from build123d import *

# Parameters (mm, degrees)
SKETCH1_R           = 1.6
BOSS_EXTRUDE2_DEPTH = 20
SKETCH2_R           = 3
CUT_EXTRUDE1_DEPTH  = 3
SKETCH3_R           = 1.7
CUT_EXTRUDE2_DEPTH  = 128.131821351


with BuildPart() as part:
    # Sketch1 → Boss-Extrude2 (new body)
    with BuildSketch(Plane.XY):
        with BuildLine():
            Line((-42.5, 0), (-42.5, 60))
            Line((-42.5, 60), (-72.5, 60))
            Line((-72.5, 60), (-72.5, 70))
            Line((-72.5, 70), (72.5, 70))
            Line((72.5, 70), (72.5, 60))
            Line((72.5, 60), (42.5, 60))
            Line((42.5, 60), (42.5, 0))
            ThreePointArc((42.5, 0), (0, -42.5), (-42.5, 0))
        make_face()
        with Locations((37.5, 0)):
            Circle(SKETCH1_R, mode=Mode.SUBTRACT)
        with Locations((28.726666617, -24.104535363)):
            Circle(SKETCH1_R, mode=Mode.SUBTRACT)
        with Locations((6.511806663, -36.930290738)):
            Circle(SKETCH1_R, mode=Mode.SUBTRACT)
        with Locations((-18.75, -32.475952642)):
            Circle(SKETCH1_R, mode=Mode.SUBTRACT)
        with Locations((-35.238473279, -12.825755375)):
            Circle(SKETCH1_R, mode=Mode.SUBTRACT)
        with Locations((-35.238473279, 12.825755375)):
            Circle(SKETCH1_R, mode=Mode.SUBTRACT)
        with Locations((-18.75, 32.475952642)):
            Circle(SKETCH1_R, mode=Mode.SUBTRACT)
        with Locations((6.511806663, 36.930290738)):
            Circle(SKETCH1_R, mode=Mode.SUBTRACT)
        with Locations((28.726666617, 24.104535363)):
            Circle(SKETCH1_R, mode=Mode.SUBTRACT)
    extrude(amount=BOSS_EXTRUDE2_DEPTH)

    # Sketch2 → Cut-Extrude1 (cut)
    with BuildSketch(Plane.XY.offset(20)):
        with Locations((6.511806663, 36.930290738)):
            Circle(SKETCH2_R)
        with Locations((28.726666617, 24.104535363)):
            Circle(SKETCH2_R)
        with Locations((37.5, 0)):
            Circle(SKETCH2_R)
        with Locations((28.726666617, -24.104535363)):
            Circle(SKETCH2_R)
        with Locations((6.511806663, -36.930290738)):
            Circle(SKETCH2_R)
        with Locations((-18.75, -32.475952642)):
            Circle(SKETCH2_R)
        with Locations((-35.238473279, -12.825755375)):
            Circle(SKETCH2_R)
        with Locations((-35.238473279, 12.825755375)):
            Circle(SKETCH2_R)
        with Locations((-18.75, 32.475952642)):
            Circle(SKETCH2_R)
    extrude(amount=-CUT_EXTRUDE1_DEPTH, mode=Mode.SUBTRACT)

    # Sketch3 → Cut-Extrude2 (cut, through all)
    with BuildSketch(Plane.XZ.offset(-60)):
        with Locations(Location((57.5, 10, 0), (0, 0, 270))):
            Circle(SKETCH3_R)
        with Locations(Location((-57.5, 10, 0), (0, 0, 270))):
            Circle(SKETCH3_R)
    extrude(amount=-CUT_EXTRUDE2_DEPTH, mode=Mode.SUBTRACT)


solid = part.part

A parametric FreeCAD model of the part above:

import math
import FreeCAD as App
import Part
import Sketcher
from FreeCAD import Vector
Q = App.Units.Quantity

doc = App.newDocument("Part")
body = doc.addObject("PartDesign::Body", "Body")

sketch1 = body.newObject("Sketcher::SketchObject", "Sketch")
sketch1.AttachmentSupport = (doc.getObject("XY_Plane"), [""])
sketch1.MapMode = "FlatFace"
sketch1.addGeometry([
    Part.LineSegment(Vector(-42.5, 60, 0), Vector(-42.5, 0, 0)),
    Part.ArcOfCircle(Part.Circle(Vector(0, 0, 0), Vector(0, 0, 1), 42.5), math.radians(180), math.radians(360)),
    Part.LineSegment(Vector(42.5, 0, 0), Vector(42.5, 60, 0)),
    Part.LineSegment(Vector(42.5, 60, 0), Vector(72.5, 60, 0)),
    Part.LineSegment(Vector(72.5, 60, 0), Vector(72.5, 70, 0)),
    Part.LineSegment(Vector(72.5, 70, 0), Vector(-72.5, 70, 0)),
    Part.LineSegment(Vector(-72.5, 70, 0), Vector(-72.5, 60, 0)),
    Part.LineSegment(Vector(-72.5, 60, 0), Vector(-42.5, 60, 0)),
    Part.Circle(Vector(28.7, -24.1, 0), Vector(0, 0, 1), 1.6),
    Part.Circle(Vector(6.5, -36.9, 0), Vector(0, 0, 1), 1.6),
    Part.Circle(Vector(-18.8, -32.5, 0), Vector(0, 0, 1), 1.6),
    Part.Circle(Vector(-35.2, -12.8, 0), Vector(0, 0, 1), 1.6),
    Part.Circle(Vector(37.5, 0, 0), Vector(0, 0, 1), 1.6),
    Part.Circle(Vector(28.7, 24.1, 0), Vector(0, 0, 1), 1.6),
    Part.Circle(Vector(6.5, 36.9, 0), Vector(0, 0, 1), 1.6),
    Part.Circle(Vector(-35.2, 12.8, 0), Vector(0, 0, 1), 1.6),
    Part.Circle(Vector(-18.8, 32.5, 0), Vector(0, 0, 1), 1.6),
], False)
sketch1.addConstraint([
    Sketcher.Constraint("Tangent", 0, 2, 1, 1),
    Sketcher.Constraint("Tangent", 1, 2, 2, 1),
    Sketcher.Constraint("Coincident", 2, 2, 3, 1),
    Sketcher.Constraint("Coincident", 3, 2, 4, 1),
    Sketcher.Constraint("Coincident", 4, 2, 5, 1),
    Sketcher.Constraint("Coincident", 5, 2, 6, 1),
    Sketcher.Constraint("Coincident", 6, 2, 7, 1),
    Sketcher.Constraint("Coincident", 7, 2, 0, 1),
    Sketcher.Constraint("Vertical", 0),
    Sketcher.Constraint("Vertical", 2),
    Sketcher.Constraint("Horizontal", 3),
    Sketcher.Constraint("Vertical", 4),
    Sketcher.Constraint("Horizontal", 5),
    Sketcher.Constraint("Vertical", 6),
    Sketcher.Constraint("Horizontal", 7),
    Sketcher.Constraint("Coincident", 1, 3, -1, 1),
    Sketcher.Constraint("Equal", 8, 9),
    Sketcher.Constraint("Equal", 9, 10),
    Sketcher.Constraint("Equal", 10, 11),
    Sketcher.Constraint("Equal", 11, 12),
    Sketcher.Constraint("Equal", 12, 13),
    Sketcher.Constraint("Equal", 13, 14),
    Sketcher.Constraint("Equal", 14, 15),
    Sketcher.Constraint("Equal", 15, 16),
    Sketcher.Constraint("Symmetric", 3, 2, 6, 2, -2),
    Sketcher.Constraint("Symmetric", 8, 3, 13, 3, -1),
    Sketcher.Constraint("Symmetric", 9, 3, 14, 3, -1),
    Sketcher.Constraint("Symmetric", 11, 3, 15, 3, -1),
    Sketcher.Constraint("Symmetric", 10, 3, 16, 3, -1),
    Sketcher.Constraint("PointOnObject", 12, 3, -1),
    Sketcher.Constraint("Diameter", 8, Q("3.2 mm")),
    Sketcher.Constraint("Radius", 1, Q("42.5 mm")),
    Sketcher.Constraint("DistanceX", 3, 1, 3, 2, Q("30 mm")),
    Sketcher.Constraint("DistanceY", 0, 2, 0, 1, Q("60 mm")),
    Sketcher.Constraint("DistanceY", 4, 1, 4, 2, Q("10 mm")),
    Sketcher.Constraint("DistanceX", 12, 3, 1, 2, Q("5 mm")),
    Sketcher.Constraint("DistanceX", 10, 3, -1, 1, Q("18.75 mm")),
    Sketcher.Constraint("DistanceY", 9, 3, -1, 1, Q("36.930291 mm")),
    Sketcher.Constraint("DistanceX", 9, 3, 8, 3, Q("22.21486 mm")),
    Sketcher.Constraint("DistanceY", 9, 3, 10, 3, Q("4.454338 mm")),
    Sketcher.Constraint("DistanceX", 11, 3, 9, 3, Q("41.75028 mm")),
    Sketcher.Constraint("DistanceY", 8, 3, 11, 3, Q("11.27878 mm")),
    Sketcher.Constraint("DistanceY", 8, 3, 13, 3, Q("48.209071 mm")),
    Sketcher.Constraint("DistanceX", -1, 1, 8, 3, Q("28.726667 mm")),
])
pad1 = body.newObject("PartDesign::Pad", "Pad")
pad1.Profile = sketch1
pad1.Length = 20

sketch2 = body.newObject("Sketcher::SketchObject", "Sketch001")
sketch2.AttachmentSupport = (doc.getObject("XY_Plane"), [""])
sketch2.MapMode = "FlatFace"
sketch2.AttachmentOffset = App.Placement(Vector(0, 0, 20), App.Rotation())
sketch2.addGeometry([
    Part.Circle(Vector(6.5, 36.9, 0), Vector(0, 0, 1), 3),
    Part.Circle(Vector(28.7, 24.1, 0), Vector(0, 0, 1), 3),
    Part.Circle(Vector(37.5, 0, 0), Vector(0, 0, 1), 3),
    Part.Circle(Vector(28.7, -24.1, 0), Vector(0, 0, 1), 3),
    Part.Circle(Vector(6.5, -36.9, 0), Vector(0, 0, 1), 3),
    Part.Circle(Vector(-18.8, -32.5, 0), Vector(0, 0, 1), 3),
    Part.Circle(Vector(-35.2, -12.8, 0), Vector(0, 0, 1), 3),
    Part.Circle(Vector(-35.2, 12.8, 0), Vector(0, 0, 1), 3),
    Part.Circle(Vector(-18.8, 32.5, 0), Vector(0, 0, 1), 3),
], False)
sketch2.addConstraint([
    Sketcher.Constraint("Equal", 0, 1),
    Sketcher.Constraint("Equal", 1, 2),
    Sketcher.Constraint("Equal", 2, 3),
    Sketcher.Constraint("Equal", 3, 4),
    Sketcher.Constraint("Equal", 4, 5),
    Sketcher.Constraint("Equal", 5, 6),
    Sketcher.Constraint("Equal", 6, 7),
    Sketcher.Constraint("Equal", 7, 8),
    Sketcher.Constraint("Symmetric", 1, 3, 3, 3, -1),
    Sketcher.Constraint("Symmetric", 0, 3, 4, 3, -1),
    Sketcher.Constraint("Symmetric", 6, 3, 7, 3, -1),
    Sketcher.Constraint("Symmetric", 5, 3, 8, 3, -1),
    Sketcher.Constraint("PointOnObject", 2, 3, -1),
    Sketcher.Constraint("Diameter", 0, Q("6 mm")),
    Sketcher.Constraint("DistanceX", -1, 1, 2, 3, Q("37.5 mm")),
    Sketcher.Constraint("DistanceX", 5, 3, -1, 1, Q("18.75 mm")),
    Sketcher.Constraint("DistanceY", -1, 1, 0, 3, Q("36.930291 mm")),
    Sketcher.Constraint("DistanceX", 0, 3, 1, 3, Q("22.21486 mm")),
    Sketcher.Constraint("DistanceY", 3, 3, 1, 3, Q("48.209071 mm")),
    Sketcher.Constraint("DistanceY", 4, 3, 5, 3, Q("4.454338 mm")),
    Sketcher.Constraint("DistanceX", 6, 3, 4, 3, Q("41.75028 mm")),
    Sketcher.Constraint("DistanceY", 3, 3, 6, 3, Q("11.27878 mm")),
    Sketcher.Constraint("DistanceX", -1, 1, 0, 3, Q("6.511807 mm")),
])
pocket1 = body.newObject("PartDesign::Pocket", "Pocket")
pocket1.Profile = sketch2
pocket1.Length = 3

sketch3 = body.newObject("Sketcher::SketchObject", "Sketch002")
sketch3.AttachmentSupport = (doc.getObject("XZ_Plane"), [""])
sketch3.MapMode = "FlatFace"
sketch3.AttachmentOffset = App.Placement(Vector(0, 0, -60), App.Rotation())
sketch3.addGeometry([
    Part.Circle(Vector(57.5, 10, 0), Vector(0, 0, 1), 1.7),
    Part.Circle(Vector(-57.5, 10, 0), Vector(0, 0, 1), 1.7),
], False)
sketch3.addConstraint([
    Sketcher.Constraint("Equal", 0, 1),
    Sketcher.Constraint("Symmetric", 0, 3, 1, 3, -2),
    Sketcher.Constraint("Diameter", 0, Q("3.4 mm")),
    Sketcher.Constraint("DistanceY", -1, 1, 0, 3, Q("10 mm")),
    Sketcher.Constraint("DistanceX", 1, 3, 0, 3, Q("115 mm")),
])
pocket2 = body.newObject("PartDesign::Pocket", "Pocket001")
pocket2.Profile = sketch3
pocket2.Type = "ThroughAll"

doc.recompute()
